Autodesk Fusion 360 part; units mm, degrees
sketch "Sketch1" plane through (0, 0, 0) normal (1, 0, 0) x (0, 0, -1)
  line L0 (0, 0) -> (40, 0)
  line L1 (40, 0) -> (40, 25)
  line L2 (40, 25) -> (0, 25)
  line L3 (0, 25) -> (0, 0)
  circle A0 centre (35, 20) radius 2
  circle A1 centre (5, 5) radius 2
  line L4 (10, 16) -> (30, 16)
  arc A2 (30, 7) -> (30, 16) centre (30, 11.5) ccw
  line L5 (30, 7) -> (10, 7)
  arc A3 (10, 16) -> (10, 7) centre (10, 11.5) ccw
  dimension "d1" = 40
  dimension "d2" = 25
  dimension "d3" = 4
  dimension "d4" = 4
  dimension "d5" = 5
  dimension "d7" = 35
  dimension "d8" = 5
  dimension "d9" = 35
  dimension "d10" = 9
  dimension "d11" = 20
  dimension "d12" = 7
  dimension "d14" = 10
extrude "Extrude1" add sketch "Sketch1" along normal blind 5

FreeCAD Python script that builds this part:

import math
import FreeCAD as App
import Part
import Sketcher
Q = App.Units.Quantity

doc = App.newDocument("Part")
body = doc.addObject("PartDesign::Body", "Body")

sketch1 = body.newObject("Sketcher::SketchObject", "Sketch")
sketch1.AttachmentSupport = (doc.getObject("YZ_Plane"), [""])
sketch1.MapMode = "FlatFace"
sketch1.addGeometry(Part.LineSegment(App.Vector(25, 0, 0), App.Vector(0, 0, 0)), False)
sketch1.addGeometry(Part.LineSegment(App.Vector(0, 0, 0), App.Vector(0, -40, 0)), False)
sketch1.addGeometry(Part.LineSegment(App.Vector(0, -40, 0), App.Vector(25, -40, 0)), False)
sketch1.addGeometry(Part.LineSegment(App.Vector(25, -40, 0), App.Vector(25, 0, 0)), False)
sketch1.addGeometry(Part.Circle(App.Vector(5, -5, 0), App.Vector(0, 0, 1), 2), False)
sketch1.addGeometry(Part.ArcOfCircle(Part.Circle(App.Vector(11.5, -10, 0), App.Vector(0, 0, 1), 4.5), math.radians(0), math.radians(180)), False)
sketch1.addGeometry(Part.LineSegment(App.Vector(16, -10, 0), App.Vector(16, -30, 0)), False)
sketch1.addGeometry(Part.ArcOfCircle(Part.Circle(App.Vector(11.5, -30, 0), App.Vector(0, 0, 1), 4.5), math.radians(180), math.radians(360)), False)
sketch1.addGeometry(Part.LineSegment(App.Vector(7, -30, 0), App.Vector(7, -10, 0)), False)
sketch1.addGeometry(Part.Circle(App.Vector(20, -35, 0), App.Vector(0, 0, 1), 2), False)
sketch1.addConstraint(Sketcher.Constraint("Coincident", 0, 2, 1, 1))
sketch1.addConstraint(Sketcher.Constraint("Coincident", 1, 2, 2, 1))
sketch1.addConstraint(Sketcher.Constraint("Coincident", 2, 2, 3, 1))
sketch1.addConstraint(Sketcher.Constraint("Coincident", 3, 2, 0, 1))
sketch1.addConstraint(Sketcher.Constraint("Tangent", 5, 1, 6, 1))
sketch1.addConstraint(Sketcher.Constraint("Tangent", 6, 2, 7, 2))
sketch1.addConstraint(Sketcher.Constraint("Tangent", 7, 1, 8, 1))
sketch1.addConstraint(Sketcher.Constraint("Tangent", 8, 2, 5, 2))
sketch1.addConstraint(Sketcher.Constraint("Horizontal", 0))
sketch1.addConstraint(Sketcher.Constraint("Vertical", 1))
sketch1.addConstraint(Sketcher.Constraint("Horizontal", 2))
sketch1.addConstraint(Sketcher.Constraint("Vertical", 3))
sketch1.addConstraint(Sketcher.Constraint("Vertical", 6))
sketch1.addConstraint(Sketcher.Constraint("Vertical", 8))
sketch1.addConstraint(Sketcher.Constraint("Coincident", 0, 2, -1, 1))
sketch1.addConstraint(Sketcher.Constraint("Equal", 4, 9))
sketch1.addConstraint(Sketcher.Constraint("Diameter", 4, Q("4 mm")))
sketch1.addConstraint(Sketcher.Constraint("Radius", 5, Q("4.5 mm")))
sketch1.addConstraint(Sketcher.Constraint("DistanceX", 0, 2, 0, 1, Q("25 mm")))
sketch1.addConstraint(Sketcher.Constraint("DistanceY", 1, 2, 1, 1, Q("40 mm")))
sketch1.addConstraint(Sketcher.Constraint("DistanceY", 6, 2, 6, 1, Q("20 mm")))
sketch1.addConstraint(Sketcher.Constraint("DistanceX", -1, 1, 4, 3, Q("5 mm")))
sketch1.addConstraint(Sketcher.Constraint("DistanceY", 4, 3, -1, 1, Q("5 mm")))
sketch1.addConstraint(Sketcher.Constraint("DistanceY", 5, 3, -1, 1, Q("10 mm")))
sketch1.addConstraint(Sketcher.Constraint("DistanceX", -1, 1, 9, 3, Q("20 mm")))
sketch1.addConstraint(Sketcher.Constraint("DistanceY", 9, 3, -1, 1, Q("35 mm")))
sketch1.addConstraint(Sketcher.Constraint("DistanceX", -1, 1, 7, 1, Q("7 mm")))
pad1 = body.newObject("PartDesign::Pad", "Pad")
pad1.Profile = sketch1
pad1.Length = 5

doc.recompute()
